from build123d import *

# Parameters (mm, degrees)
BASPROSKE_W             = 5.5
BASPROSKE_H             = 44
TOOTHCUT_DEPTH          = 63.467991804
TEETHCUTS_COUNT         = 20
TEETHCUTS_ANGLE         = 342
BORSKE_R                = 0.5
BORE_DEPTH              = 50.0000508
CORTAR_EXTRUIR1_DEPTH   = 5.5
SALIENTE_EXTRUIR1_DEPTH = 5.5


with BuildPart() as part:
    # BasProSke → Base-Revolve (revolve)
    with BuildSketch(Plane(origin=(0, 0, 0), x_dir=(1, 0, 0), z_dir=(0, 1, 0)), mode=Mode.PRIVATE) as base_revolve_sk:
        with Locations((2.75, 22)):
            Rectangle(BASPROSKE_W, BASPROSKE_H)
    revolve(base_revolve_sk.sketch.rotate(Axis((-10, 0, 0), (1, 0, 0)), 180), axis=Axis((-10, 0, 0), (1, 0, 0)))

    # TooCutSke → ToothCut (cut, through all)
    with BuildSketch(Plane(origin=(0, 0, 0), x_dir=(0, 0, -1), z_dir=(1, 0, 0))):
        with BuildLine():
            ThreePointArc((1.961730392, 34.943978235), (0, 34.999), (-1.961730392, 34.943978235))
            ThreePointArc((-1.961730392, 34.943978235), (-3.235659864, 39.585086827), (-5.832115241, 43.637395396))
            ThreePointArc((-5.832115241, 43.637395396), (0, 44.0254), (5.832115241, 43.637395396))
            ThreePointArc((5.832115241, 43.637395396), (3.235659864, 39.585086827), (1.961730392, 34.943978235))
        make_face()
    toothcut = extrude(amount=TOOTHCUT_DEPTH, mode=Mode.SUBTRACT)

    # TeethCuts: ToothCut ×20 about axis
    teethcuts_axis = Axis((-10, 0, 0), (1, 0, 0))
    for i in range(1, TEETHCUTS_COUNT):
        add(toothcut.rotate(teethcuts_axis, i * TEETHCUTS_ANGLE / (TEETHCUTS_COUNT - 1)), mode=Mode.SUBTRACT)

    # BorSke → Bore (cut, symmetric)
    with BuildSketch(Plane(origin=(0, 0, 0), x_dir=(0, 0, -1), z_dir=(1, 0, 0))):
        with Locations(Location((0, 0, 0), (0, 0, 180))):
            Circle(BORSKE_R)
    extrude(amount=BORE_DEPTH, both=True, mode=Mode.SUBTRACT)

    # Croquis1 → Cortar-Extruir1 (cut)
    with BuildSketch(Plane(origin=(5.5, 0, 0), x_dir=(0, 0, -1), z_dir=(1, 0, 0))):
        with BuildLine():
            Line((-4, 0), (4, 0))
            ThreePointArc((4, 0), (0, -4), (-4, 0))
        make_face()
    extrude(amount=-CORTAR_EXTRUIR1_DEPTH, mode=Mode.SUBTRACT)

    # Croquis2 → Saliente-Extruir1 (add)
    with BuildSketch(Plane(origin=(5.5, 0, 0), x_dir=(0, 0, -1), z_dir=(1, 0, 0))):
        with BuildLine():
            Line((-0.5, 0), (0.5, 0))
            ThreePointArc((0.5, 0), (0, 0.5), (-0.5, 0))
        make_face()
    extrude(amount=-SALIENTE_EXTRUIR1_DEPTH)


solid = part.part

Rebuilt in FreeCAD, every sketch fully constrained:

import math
import FreeCAD as App
import Part
import Sketcher

V = App.Vector
Q = App.Units.Quantity

doc = App.newDocument("Part")
body = doc.addObject("PartDesign::Body", "Body")

# Sketch on XZ plane
sketch1 = body.newObject("Sketcher::SketchObject", "Sketch")
sketch1.AttachmentSupport = (doc.getObject("XZ_Plane"), [""])
sketch1.MapMode = "FlatFace"
sketch1.addGeometry([
    Part.LineSegment(V(0, -44, 0), V(0, 0, 0)),
    Part.LineSegment(V(0, 0, 0), V(6, 0, 0)),
    Part.LineSegment(V(6, 0, 0), V(6, -44, 0)),
    Part.LineSegment(V(6, -44, 0), V(0, -44, 0)),
], False)
sketch1.addConstraint([
    Sketcher.Constraint("Coincident", 0, 2, 1, 1),
    Sketcher.Constraint("Coincident", 1, 2, 2, 1),
    Sketcher.Constraint("Coincident", 2, 2, 3, 1),
    Sketcher.Constraint("Coincident", 3, 2, 0, 1),
    Sketcher.Constraint("Vertical", 0),
    Sketcher.Constraint("Horizontal", 1),
    Sketcher.Constraint("Vertical", 2),
    Sketcher.Constraint("Horizontal", 3),
    Sketcher.Constraint("Coincident", 0, 2, -1, 1),
    Sketcher.Constraint("DistanceY", 0, 1, 0, 2, Q("44 mm")),
    Sketcher.Constraint("DistanceX", 1, 1, 1, 2, Q("5.5 mm")),
])
revolution = body.newObject("PartDesign::Revolution", "Revolution")
revolution.Profile = sketch1
revolution.ReferenceAxis = (sketch1, ["H_Axis"])
revolution.Angle = 360

# Sketch on YZ plane
sketch2 = body.newObject("Sketcher::SketchObject", "Sketch001")
sketch2.AttachmentSupport = (doc.getObject("YZ_Plane"), [""])
sketch2.MapMode = "FlatFace"
sketch2.addGeometry([
    Part.ArcOfCircle(Part.Circle(V(0, 0, 0), V(0, 0, 1), 34.999), math.radians(-3.213172), math.radians(3.213172)),
    Part.ArcOfCircle(Part.Circle(V(33.077544, -17.852496, 0), V(0, 0, 1), 16), math.radians(48.700838), math.radians(83.301075)),
    Part.ArcOfCircle(Part.Circle(V(0, 0, 0), V(0, 0, 1), 44.0254), math.radians(-7.61244), math.radians(7.61244)),
    Part.ArcOfCircle(Part.Circle(V(33.077544, 17.852496, 0), V(0, 0, 1), 16), math.radians(-83.301075), math.radians(-48.700838)),
], False)
sketch2.addConstraint([
    Sketcher.Constraint("Coincident", 0, 1, 1, 2),
    Sketcher.Constraint("Coincident", 1, 1, 2, 1),
    Sketcher.Constraint("Coincident", 2, 2, 3, 2),
    Sketcher.Constraint("Coincident", 3, 1, 0, 2),
    Sketcher.Constraint("Coincident", 0, 3, -1, 1),
    Sketcher.Constraint("Coincident", 2, 3, -1, 1),
    Sketcher.Constraint("Radius", 1, Q("16 mm")),
    Sketcher.Constraint("Radius", 3, Q("16 mm")),
    Sketcher.Constraint("Radius", 0, Q("34.999 mm")),
    Sketcher.Constraint("Radius", 2, Q("44.0254 mm")),
    Sketcher.Constraint("DistanceX", -1, 1, 0, 1, Q("34.943978 mm")),
    Sketcher.Constraint("DistanceX", -1, 1, 3, 1, Q("34.943978 mm")),
    Sketcher.Constraint("DistanceY", 1, 3, 3, 3, Q("35.704992 mm")),
    Sketcher.Constraint("DistanceX", 1, 3, 1, 1, Q("10.559851 mm")),
])
pocket1 = body.newObject("PartDesign::Pocket", "Pocket")
pocket1.Profile = sketch2
pocket1.Type = "ThroughAll"
pocket1.Reversed = True
doc.recompute()

polarpattern = body.newObject("PartDesign::PolarPattern", "PolarPattern")
polarpattern.Originals = [pocket1]
polarpattern.Axis = (doc.getObject("X_Axis"), [""])
polarpattern.Angle = 360
polarpattern.Occurrences = 20
body.Tip = polarpattern

# Sketch on YZ plane
sketch3 = body.newObject("Sketcher::SketchObject", "Sketch002")
sketch3.AttachmentSupport = (doc.getObject("YZ_Plane"), [""])
sketch3.MapMode = "FlatFace"
sketch3.addGeometry(Part.Circle(V(0, 0, 0), V(0, 0, 1), 0.5), False)
sketch3.addConstraint([
    Sketcher.Constraint("Coincident", 0, 3, -1, 1),
    Sketcher.Constraint("Diameter", 0, Q("1 mm")),
])
pocket2 = body.newObject("PartDesign::Pocket", "Pocket001")
pocket2.Profile = sketch3
pocket2.Length = 100.000102
pocket2.Midplane = True

# Sketch on YZ plane
sketch4 = body.newObject("Sketcher::SketchObject", "Sketch003")
sketch4.AttachmentSupport = (doc.getObject("YZ_Plane"), [""])
sketch4.MapMode = "FlatFace"
sketch4.AttachmentOffset = App.Placement(V(0, 0, 5.5), App.Rotation())
sketch4.addGeometry([
    Part.LineSegment(V(0, -4, 0), V(0, 4, 0)),
    Part.ArcOfCircle(Part.Circle(V(0, 0, 0), V(0, 0, 1), 4), math.radians(90), math.radians(270)),
], False)
sketch4.addConstraint([
    Sketcher.Constraint("Coincident", 0, 1, 1, 2),
    Sketcher.Constraint("Coincident", 1, 1, 0, 2),
    Sketcher.Constraint("Vertical", 0),
    Sketcher.Constraint("Coincident", 1, 3, -1, 1),
    Sketcher.Constraint("PointOnObject", 0, 1, -2),
    Sketcher.Constraint("Radius", 1, Q("4 mm")),
])
pocket3 = body.newObject("PartDesign::Pocket", "Pocket002")
pocket3.Profile = sketch4
pocket3.Length = 5.5

# Sketch on YZ plane
sketch5 = body.newObject("Sketcher::SketchObject", "Sketch004")
sketch5.AttachmentSupport = (doc.getObject("YZ_Plane"), [""])
sketch5.MapMode = "FlatFace"
sketch5.AttachmentOffset = App.Placement(V(0, 0, 5.5), App.Rotation())
sketch5.addGeometry([
    Part.LineSegment(V(0, 0.5, 0), V(0, -0.5, 0)),
    Part.ArcOfCircle(Part.Circle(V(0, 0, 0), V(0, 0, 1), 0.5), math.radians(-90), math.radians(90)),
], False)
sketch5.addConstraint([
    Sketcher.Constraint("Coincident", 0, 1, 1, 2),
    Sketcher.Constraint("Coincident", 1, 1, 0, 2),
    Sketcher.Constraint("Vertical", 0),
    Sketcher.Constraint("Coincident", 1, 3, -1, 1),
    Sketcher.Constraint("PointOnObject", 0, 1, -2),
    Sketcher.Constraint("Radius", 1, Q("0.5 mm")),
])
pad1 = body.newObject("PartDesign::Pad", "Pad")
pad1.Profile = sketch5
pad1.Length = 5.5
pad1.Reversed = True

doc.recompute()
